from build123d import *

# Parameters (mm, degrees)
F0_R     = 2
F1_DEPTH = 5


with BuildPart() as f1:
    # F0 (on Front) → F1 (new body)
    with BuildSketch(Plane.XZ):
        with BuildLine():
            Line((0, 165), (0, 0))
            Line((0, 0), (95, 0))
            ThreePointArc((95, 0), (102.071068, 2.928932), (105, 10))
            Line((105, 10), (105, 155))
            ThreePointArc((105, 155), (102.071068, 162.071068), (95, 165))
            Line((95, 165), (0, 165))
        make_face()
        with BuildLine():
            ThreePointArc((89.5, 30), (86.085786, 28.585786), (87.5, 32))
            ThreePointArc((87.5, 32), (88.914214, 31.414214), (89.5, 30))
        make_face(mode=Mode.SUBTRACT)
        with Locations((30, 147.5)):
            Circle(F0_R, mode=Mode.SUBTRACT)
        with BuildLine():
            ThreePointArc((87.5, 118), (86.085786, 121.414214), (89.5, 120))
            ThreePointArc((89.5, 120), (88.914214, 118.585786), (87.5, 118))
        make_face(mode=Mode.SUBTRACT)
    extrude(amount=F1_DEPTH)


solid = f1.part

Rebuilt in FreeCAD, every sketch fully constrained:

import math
import FreeCAD as App
import Part
import Sketcher
from FreeCAD import Vector
Q = App.Units.Quantity

doc = App.newDocument("Part")
body = doc.addObject("PartDesign::Body", "Body")

sketch1 = body.newObject("Sketcher::SketchObject", "Sketch")
sketch1.AttachmentSupport = (doc.getObject("XZ_Plane"), [""])
sketch1.MapMode = "FlatFace"
sketch1.addGeometry([
    Part.LineSegment(Vector(0, 165, 0), Vector(0, 0, 0)),
    Part.LineSegment(Vector(0, 0, 0), Vector(95, 0, 0)),
    Part.ArcOfCircle(Part.Circle(Vector(95.000001, 9.999999, 0), Vector(0, 0, 1), 9.999999), math.radians(-90.000004), math.radians(0.000004)),
    Part.LineSegment(Vector(105, 10, 0), Vector(105, 155, 0)),
    Part.ArcOfCircle(Part.Circle(Vector(95.000001, 155.000001, 0), Vector(0, 0, 1), 9.999999), math.radians(-0.000004), math.radians(90.000004)),
    Part.LineSegment(Vector(95, 165, 0), Vector(0, 165, 0)),
    Part.ArcOfCircle(Part.Circle(Vector(87.500001, 30.000001, 0), Vector(0, 0, 1), 1.999999), math.radians(-0.000043), math.radians(90.000043)),
    Part.ArcOfCircle(Part.Circle(Vector(87.5, 30, 0), Vector(0, 0, 1), 2), math.radians(89.999993), math.radians(360.000007)),
    Part.Circle(Vector(30, 147.5, 0), Vector(0, 0, 1), 2),
    Part.ArcOfCircle(Part.Circle(Vector(87.500001, 119.999999, 0), Vector(0, 0, 1), 1.999999), math.radians(-90.000043), math.radians(0.000043)),
    Part.ArcOfCircle(Part.Circle(Vector(87.5, 120, 0), Vector(0, 0, 1), 2), math.radians(-0.000007), math.radians(270.000007)),
], False)
sketch1.addConstraint([
    Sketcher.Constraint("Coincident", 0, 2, 1, 1),
    Sketcher.Constraint("Tangent", 1, 2, 2, 1),
    Sketcher.Constraint("Tangent", 2, 2, 3, 1),
    Sketcher.Constraint("Tangent", 3, 2, 4, 1),
    Sketcher.Constraint("Tangent", 4, 2, 5, 1),
    Sketcher.Constraint("Coincident", 5, 2, 0, 1),
    Sketcher.Constraint("Tangent", 6, 1, 7, 2),
    Sketcher.Constraint("Coincident", 7, 1, 6, 2),
    Sketcher.Constraint("Tangent", 9, 1, 10, 2),
    Sketcher.Constraint("Coincident", 10, 1, 9, 2),
    Sketcher.Constraint("Vertical", 0),
    Sketcher.Constraint("Horizontal", 1),
    Sketcher.Constraint("Vertical", 3),
    Sketcher.Constraint("Horizontal", 5),
    Sketcher.Constraint("Coincident", 0, 2, -1, 1),
    Sketcher.Constraint("Equal", 2, 4),
    Sketcher.Constraint("Equal", 7, 8),
    Sketcher.Constraint("Equal", 8, 9),
    Sketcher.Constraint("Horizontal", 7, 3, 6, 1),
    Sketcher.Constraint("Horizontal", 9, 3, 10, 1),
    Sketcher.Constraint("Vertical", 7, 3, 9, 3),
    Sketcher.Constraint("Vertical", 10, 3, 7, 1),
    Sketcher.Constraint("Vertical", 7, 1, 9, 1),
    Sketcher.Constraint("Diameter", 8, Q("4 mm")),
    Sketcher.Constraint("Radius", 2, Q("9.999999 mm")),
    Sketcher.Constraint("DistanceX", 1, 1, 1, 2, Q("95 mm")),
    Sketcher.Constraint("DistanceY", 0, 2, 0, 1, Q("165 mm")),
    Sketcher.Constraint("DistanceY", -1, 1, 6, 3, Q("30.000001 mm")),
    Sketcher.Constraint("DistanceX", -1, 1, 8, 3, Q("30 mm")),
    Sketcher.Constraint("DistanceY", -1, 1, 9, 3, Q("119.999999 mm")),
    Sketcher.Constraint("DistanceX", -1, 1, 6, 3, Q("87.500001 mm")),
    Sketcher.Constraint("DistanceY", -1, 1, 8, 3, Q("147.5 mm")),
])
pad1 = body.newObject("PartDesign::Pad", "Pad")
pad1.Profile = sketch1
pad1.Length = 5

doc.recompute()
